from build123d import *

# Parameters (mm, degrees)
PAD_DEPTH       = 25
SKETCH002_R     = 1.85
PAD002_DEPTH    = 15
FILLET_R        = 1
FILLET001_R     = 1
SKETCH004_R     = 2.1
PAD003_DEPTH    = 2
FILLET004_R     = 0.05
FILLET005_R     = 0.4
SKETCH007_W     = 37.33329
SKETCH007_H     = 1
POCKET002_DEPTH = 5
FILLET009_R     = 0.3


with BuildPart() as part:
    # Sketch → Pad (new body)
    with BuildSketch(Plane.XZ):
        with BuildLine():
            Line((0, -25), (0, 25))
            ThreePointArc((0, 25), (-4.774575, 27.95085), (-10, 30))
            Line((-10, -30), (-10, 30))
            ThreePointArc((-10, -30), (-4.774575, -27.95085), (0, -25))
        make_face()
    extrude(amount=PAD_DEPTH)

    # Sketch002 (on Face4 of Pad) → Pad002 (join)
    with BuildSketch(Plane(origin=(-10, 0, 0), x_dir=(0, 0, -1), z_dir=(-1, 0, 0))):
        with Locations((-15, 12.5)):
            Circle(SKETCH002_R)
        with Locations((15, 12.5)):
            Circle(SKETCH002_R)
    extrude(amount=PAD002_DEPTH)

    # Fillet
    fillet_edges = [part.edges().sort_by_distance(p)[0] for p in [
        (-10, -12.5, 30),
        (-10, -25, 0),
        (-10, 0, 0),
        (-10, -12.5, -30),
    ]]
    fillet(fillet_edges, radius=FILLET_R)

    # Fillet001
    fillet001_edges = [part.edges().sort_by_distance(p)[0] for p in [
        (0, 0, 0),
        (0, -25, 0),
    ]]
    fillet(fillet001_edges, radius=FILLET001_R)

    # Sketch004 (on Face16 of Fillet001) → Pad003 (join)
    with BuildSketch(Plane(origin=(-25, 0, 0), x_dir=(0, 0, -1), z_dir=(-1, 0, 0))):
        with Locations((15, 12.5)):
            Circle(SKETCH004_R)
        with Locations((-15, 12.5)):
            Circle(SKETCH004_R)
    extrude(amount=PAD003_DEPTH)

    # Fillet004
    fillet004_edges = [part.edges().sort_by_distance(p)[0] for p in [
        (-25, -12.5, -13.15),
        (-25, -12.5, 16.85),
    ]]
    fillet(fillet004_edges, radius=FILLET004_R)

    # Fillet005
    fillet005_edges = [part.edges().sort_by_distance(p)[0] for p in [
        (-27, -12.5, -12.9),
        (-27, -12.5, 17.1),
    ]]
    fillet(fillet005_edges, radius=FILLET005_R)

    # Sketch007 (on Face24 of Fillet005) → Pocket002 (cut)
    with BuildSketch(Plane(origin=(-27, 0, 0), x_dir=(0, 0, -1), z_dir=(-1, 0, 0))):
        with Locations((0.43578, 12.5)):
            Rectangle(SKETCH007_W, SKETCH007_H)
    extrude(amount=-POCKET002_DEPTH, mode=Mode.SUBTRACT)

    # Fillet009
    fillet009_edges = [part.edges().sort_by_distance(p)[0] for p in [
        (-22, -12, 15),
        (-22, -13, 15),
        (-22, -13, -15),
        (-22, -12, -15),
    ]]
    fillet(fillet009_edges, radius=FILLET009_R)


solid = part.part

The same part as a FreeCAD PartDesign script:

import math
import FreeCAD as App
import Part
import Sketcher

V = App.Vector


def edges_at(feature, points):
    """Names of the edges that pass closest to the given points."""
    edges = feature.Shape.Edges
    near = lambda p: min(range(len(edges)), key=lambda i: edges[i].distToShape(Part.Vertex(*p))[0])
    return sorted({f"Edge{near(p) + 1}" for p in points})

doc = App.newDocument("Part")
body = doc.addObject("PartDesign::Body", "Body")

sketch1 = body.newObject("Sketcher::SketchObject", "Sketch")
sketch1.AttachmentSupport = (doc.getObject("XZ_Plane"), [""])
sketch1.MapMode = "FlatFace"
sketch1.addGeometry([
    Part.LineSegment(V(0, -25, 0), V(0, 25, 0)),
    Part.ArcOfCircle(Part.Circle(V(-18.749991, 0.000017, 0), V(0, 0, 1), 31.249981), math.radians(53.130096), math.radians(73.739802)),
    Part.LineSegment(V(-10, 30, 0), V(-10, -30, 0)),
    Part.ArcOfCircle(Part.Circle(V(-18.749991, -0.000017, 0), V(0, 0, 1), 31.249981), math.radians(-73.739802), math.radians(-53.130096)),
], False)
sketch1.addConstraint([
    Sketcher.Constraint("Coincident", 0, 2, 1, 1),
    Sketcher.Constraint("Coincident", 1, 2, 2, 1),
    Sketcher.Constraint("Coincident", 2, 2, 3, 1),
    Sketcher.Constraint("Coincident", 3, 2, 0, 1),
    Sketcher.Constraint("Vertical", 0),
    Sketcher.Constraint("Vertical", 2),
    Sketcher.Constraint("Equal", 1, 3),
    Sketcher.Constraint("Symmetric", 0, 2, 3, 2, -1, 1),
    Sketcher.Constraint("Vertical", 1, 3, 3, 3),
    Sketcher.Constraint("DistanceY", 0, 1, 0, 2, 50.0),
    Sketcher.Constraint("DistanceY", 2, 2, 2, 1, 60.0),
    Sketcher.Constraint("DistanceX", 1, 2, -1, 1, 10.0),
    Sketcher.Constraint("Radius", 1, 31.249981),
])
pad1 = body.newObject("PartDesign::Pad", "Pad")
pad1.Profile = sketch1
pad1.Length = 25

sketch2 = body.newObject("Sketcher::SketchObject", "Sketch001")
sketch2.AttachmentSupport = (doc.getObject("YZ_Plane"), [""])
sketch2.MapMode = "FlatFace"
sketch2.AttachmentOffset = App.Placement(V(0, 0, -10), App.Rotation())
sketch2.addGeometry([
    Part.Circle(V(-12.5, 15, 0), V(0, 0, 1), 1.85),
    Part.Circle(V(-12.5, -15, 0), V(0, 0, 1), 1.85),
], False)
sketch2.addConstraint([
    Sketcher.Constraint("Equal", 0, 1),
    Sketcher.Constraint("Symmetric", 0, 3, 1, 3, -1),
    Sketcher.Constraint("Diameter", 0, 3.7),
    Sketcher.Constraint("DistanceY", -1, 1, 0, 3, 15.0),
    Sketcher.Constraint("DistanceX", 0, 3, -1, 1, 12.5),
])
pad2 = body.newObject("PartDesign::Pad", "Pad001")
pad2.Profile = sketch2
pad2.Length = 15
pad2.Reversed = True
doc.recompute()

fillet = body.newObject("PartDesign::Fillet", "Fillet")
fillet.Base = (pad2, edges_at(pad2, [
    (-10, -12.5, 30),
    (-10, -25, 0),
    (-10, 0, 0),
    (-10, -12.5, -30),
]))
fillet.Radius = 1
doc.recompute()

fillet2 = body.newObject("PartDesign::Fillet", "Fillet001")
fillet2.Base = (fillet, edges_at(fillet, [(0, 0, 0), (0, -25, 0)]))
fillet2.Radius = 1

sketch3 = body.newObject("Sketcher::SketchObject", "Sketch002")
sketch3.AttachmentSupport = (doc.getObject("YZ_Plane"), [""])
sketch3.MapMode = "FlatFace"
sketch3.AttachmentOffset = App.Placement(V(0, 0, -25), App.Rotation())
sketch3.addGeometry([
    Part.Circle(V(-12.5, -15, 0), V(0, 0, 1), 2.1),
    Part.Circle(V(-12.5, 15, 0), V(0, 0, 1), 2.1),
], False)
sketch3.addConstraint([
    Sketcher.Constraint("Equal", 0, 1),
    Sketcher.Constraint("Symmetric", 0, 3, 1, 3, -1),
    Sketcher.Constraint("Diameter", 0, 4.2),
    Sketcher.Constraint("DistanceY", 0, 3, -1, 1, 15.0),
    Sketcher.Constraint("DistanceX", 0, 3, -1, 1, 12.5),
])
pad3 = body.newObject("PartDesign::Pad", "Pad002")
pad3.Profile = sketch3
pad3.Length = 2
pad3.Reversed = True
doc.recompute()

fillet3 = body.newObject("PartDesign::Fillet", "Fillet002")
fillet3.Base = (pad3, edges_at(pad3, [(-25, -12.5, -13.15), (-25, -12.5, 16.85)]))
fillet3.Radius = 0.05
doc.recompute()

fillet4 = body.newObject("PartDesign::Fillet", "Fillet003")
fillet4.Base = (fillet3, edges_at(fillet3, [(-27, -12.5, -12.9), (-27, -12.5, 17.1)]))
fillet4.Radius = 0.4

sketch4 = body.newObject("Sketcher::SketchObject", "Sketch003")
sketch4.AttachmentSupport = (doc.getObject("YZ_Plane"), [""])
sketch4.MapMode = "FlatFace"
sketch4.AttachmentOffset = App.Placement(V(0, 0, -27), App.Rotation())
sketch4.addGeometry([
    Part.LineSegment(V(-13, 18.230865, 0), V(-12, 18.230865, 0)),
    Part.LineSegment(V(-12, 18.230865, 0), V(-12, -19.102425, 0)),
    Part.LineSegment(V(-12, -19.102425, 0), V(-13, -19.102425, 0)),
    Part.LineSegment(V(-13, -19.102425, 0), V(-13, 18.230865, 0)),
], False)
sketch4.addConstraint([
    Sketcher.Constraint("Coincident", 0, 2, 1, 1),
    Sketcher.Constraint("Coincident", 1, 2, 2, 1),
    Sketcher.Constraint("Coincident", 2, 2, 3, 1),
    Sketcher.Constraint("Coincident", 3, 2, 0, 1),
    Sketcher.Constraint("Horizontal", 0),
    Sketcher.Constraint("Vertical", 1),
    Sketcher.Constraint("Horizontal", 2),
    Sketcher.Constraint("Vertical", 3),
    Sketcher.Constraint("DistanceX", 0, 1, 0, 2, 1.0),
    Sketcher.Constraint("DistanceX", 0, 2, -1, 1, 12.0),
    Sketcher.Constraint("DistanceY", 1, 2, 1, 1, 37.33329),
    Sketcher.Constraint("DistanceY", -1, 1, 0, 2, 18.230865),
])
pocket1 = body.newObject("PartDesign::Pocket", "Pocket")
pocket1.Profile = sketch4
pocket1.Length = 5
pocket1.Reversed = True
doc.recompute()

fillet5 = body.newObject("PartDesign::Fillet", "Fillet004")
fillet5.Base = (pocket1, edges_at(pocket1, [
    (-22, -12, 15),
    (-22, -13, 15),
    (-22, -13, -15),
    (-22, -12, -15),
]))
fillet5.Radius = 0.3

doc.recompute()
